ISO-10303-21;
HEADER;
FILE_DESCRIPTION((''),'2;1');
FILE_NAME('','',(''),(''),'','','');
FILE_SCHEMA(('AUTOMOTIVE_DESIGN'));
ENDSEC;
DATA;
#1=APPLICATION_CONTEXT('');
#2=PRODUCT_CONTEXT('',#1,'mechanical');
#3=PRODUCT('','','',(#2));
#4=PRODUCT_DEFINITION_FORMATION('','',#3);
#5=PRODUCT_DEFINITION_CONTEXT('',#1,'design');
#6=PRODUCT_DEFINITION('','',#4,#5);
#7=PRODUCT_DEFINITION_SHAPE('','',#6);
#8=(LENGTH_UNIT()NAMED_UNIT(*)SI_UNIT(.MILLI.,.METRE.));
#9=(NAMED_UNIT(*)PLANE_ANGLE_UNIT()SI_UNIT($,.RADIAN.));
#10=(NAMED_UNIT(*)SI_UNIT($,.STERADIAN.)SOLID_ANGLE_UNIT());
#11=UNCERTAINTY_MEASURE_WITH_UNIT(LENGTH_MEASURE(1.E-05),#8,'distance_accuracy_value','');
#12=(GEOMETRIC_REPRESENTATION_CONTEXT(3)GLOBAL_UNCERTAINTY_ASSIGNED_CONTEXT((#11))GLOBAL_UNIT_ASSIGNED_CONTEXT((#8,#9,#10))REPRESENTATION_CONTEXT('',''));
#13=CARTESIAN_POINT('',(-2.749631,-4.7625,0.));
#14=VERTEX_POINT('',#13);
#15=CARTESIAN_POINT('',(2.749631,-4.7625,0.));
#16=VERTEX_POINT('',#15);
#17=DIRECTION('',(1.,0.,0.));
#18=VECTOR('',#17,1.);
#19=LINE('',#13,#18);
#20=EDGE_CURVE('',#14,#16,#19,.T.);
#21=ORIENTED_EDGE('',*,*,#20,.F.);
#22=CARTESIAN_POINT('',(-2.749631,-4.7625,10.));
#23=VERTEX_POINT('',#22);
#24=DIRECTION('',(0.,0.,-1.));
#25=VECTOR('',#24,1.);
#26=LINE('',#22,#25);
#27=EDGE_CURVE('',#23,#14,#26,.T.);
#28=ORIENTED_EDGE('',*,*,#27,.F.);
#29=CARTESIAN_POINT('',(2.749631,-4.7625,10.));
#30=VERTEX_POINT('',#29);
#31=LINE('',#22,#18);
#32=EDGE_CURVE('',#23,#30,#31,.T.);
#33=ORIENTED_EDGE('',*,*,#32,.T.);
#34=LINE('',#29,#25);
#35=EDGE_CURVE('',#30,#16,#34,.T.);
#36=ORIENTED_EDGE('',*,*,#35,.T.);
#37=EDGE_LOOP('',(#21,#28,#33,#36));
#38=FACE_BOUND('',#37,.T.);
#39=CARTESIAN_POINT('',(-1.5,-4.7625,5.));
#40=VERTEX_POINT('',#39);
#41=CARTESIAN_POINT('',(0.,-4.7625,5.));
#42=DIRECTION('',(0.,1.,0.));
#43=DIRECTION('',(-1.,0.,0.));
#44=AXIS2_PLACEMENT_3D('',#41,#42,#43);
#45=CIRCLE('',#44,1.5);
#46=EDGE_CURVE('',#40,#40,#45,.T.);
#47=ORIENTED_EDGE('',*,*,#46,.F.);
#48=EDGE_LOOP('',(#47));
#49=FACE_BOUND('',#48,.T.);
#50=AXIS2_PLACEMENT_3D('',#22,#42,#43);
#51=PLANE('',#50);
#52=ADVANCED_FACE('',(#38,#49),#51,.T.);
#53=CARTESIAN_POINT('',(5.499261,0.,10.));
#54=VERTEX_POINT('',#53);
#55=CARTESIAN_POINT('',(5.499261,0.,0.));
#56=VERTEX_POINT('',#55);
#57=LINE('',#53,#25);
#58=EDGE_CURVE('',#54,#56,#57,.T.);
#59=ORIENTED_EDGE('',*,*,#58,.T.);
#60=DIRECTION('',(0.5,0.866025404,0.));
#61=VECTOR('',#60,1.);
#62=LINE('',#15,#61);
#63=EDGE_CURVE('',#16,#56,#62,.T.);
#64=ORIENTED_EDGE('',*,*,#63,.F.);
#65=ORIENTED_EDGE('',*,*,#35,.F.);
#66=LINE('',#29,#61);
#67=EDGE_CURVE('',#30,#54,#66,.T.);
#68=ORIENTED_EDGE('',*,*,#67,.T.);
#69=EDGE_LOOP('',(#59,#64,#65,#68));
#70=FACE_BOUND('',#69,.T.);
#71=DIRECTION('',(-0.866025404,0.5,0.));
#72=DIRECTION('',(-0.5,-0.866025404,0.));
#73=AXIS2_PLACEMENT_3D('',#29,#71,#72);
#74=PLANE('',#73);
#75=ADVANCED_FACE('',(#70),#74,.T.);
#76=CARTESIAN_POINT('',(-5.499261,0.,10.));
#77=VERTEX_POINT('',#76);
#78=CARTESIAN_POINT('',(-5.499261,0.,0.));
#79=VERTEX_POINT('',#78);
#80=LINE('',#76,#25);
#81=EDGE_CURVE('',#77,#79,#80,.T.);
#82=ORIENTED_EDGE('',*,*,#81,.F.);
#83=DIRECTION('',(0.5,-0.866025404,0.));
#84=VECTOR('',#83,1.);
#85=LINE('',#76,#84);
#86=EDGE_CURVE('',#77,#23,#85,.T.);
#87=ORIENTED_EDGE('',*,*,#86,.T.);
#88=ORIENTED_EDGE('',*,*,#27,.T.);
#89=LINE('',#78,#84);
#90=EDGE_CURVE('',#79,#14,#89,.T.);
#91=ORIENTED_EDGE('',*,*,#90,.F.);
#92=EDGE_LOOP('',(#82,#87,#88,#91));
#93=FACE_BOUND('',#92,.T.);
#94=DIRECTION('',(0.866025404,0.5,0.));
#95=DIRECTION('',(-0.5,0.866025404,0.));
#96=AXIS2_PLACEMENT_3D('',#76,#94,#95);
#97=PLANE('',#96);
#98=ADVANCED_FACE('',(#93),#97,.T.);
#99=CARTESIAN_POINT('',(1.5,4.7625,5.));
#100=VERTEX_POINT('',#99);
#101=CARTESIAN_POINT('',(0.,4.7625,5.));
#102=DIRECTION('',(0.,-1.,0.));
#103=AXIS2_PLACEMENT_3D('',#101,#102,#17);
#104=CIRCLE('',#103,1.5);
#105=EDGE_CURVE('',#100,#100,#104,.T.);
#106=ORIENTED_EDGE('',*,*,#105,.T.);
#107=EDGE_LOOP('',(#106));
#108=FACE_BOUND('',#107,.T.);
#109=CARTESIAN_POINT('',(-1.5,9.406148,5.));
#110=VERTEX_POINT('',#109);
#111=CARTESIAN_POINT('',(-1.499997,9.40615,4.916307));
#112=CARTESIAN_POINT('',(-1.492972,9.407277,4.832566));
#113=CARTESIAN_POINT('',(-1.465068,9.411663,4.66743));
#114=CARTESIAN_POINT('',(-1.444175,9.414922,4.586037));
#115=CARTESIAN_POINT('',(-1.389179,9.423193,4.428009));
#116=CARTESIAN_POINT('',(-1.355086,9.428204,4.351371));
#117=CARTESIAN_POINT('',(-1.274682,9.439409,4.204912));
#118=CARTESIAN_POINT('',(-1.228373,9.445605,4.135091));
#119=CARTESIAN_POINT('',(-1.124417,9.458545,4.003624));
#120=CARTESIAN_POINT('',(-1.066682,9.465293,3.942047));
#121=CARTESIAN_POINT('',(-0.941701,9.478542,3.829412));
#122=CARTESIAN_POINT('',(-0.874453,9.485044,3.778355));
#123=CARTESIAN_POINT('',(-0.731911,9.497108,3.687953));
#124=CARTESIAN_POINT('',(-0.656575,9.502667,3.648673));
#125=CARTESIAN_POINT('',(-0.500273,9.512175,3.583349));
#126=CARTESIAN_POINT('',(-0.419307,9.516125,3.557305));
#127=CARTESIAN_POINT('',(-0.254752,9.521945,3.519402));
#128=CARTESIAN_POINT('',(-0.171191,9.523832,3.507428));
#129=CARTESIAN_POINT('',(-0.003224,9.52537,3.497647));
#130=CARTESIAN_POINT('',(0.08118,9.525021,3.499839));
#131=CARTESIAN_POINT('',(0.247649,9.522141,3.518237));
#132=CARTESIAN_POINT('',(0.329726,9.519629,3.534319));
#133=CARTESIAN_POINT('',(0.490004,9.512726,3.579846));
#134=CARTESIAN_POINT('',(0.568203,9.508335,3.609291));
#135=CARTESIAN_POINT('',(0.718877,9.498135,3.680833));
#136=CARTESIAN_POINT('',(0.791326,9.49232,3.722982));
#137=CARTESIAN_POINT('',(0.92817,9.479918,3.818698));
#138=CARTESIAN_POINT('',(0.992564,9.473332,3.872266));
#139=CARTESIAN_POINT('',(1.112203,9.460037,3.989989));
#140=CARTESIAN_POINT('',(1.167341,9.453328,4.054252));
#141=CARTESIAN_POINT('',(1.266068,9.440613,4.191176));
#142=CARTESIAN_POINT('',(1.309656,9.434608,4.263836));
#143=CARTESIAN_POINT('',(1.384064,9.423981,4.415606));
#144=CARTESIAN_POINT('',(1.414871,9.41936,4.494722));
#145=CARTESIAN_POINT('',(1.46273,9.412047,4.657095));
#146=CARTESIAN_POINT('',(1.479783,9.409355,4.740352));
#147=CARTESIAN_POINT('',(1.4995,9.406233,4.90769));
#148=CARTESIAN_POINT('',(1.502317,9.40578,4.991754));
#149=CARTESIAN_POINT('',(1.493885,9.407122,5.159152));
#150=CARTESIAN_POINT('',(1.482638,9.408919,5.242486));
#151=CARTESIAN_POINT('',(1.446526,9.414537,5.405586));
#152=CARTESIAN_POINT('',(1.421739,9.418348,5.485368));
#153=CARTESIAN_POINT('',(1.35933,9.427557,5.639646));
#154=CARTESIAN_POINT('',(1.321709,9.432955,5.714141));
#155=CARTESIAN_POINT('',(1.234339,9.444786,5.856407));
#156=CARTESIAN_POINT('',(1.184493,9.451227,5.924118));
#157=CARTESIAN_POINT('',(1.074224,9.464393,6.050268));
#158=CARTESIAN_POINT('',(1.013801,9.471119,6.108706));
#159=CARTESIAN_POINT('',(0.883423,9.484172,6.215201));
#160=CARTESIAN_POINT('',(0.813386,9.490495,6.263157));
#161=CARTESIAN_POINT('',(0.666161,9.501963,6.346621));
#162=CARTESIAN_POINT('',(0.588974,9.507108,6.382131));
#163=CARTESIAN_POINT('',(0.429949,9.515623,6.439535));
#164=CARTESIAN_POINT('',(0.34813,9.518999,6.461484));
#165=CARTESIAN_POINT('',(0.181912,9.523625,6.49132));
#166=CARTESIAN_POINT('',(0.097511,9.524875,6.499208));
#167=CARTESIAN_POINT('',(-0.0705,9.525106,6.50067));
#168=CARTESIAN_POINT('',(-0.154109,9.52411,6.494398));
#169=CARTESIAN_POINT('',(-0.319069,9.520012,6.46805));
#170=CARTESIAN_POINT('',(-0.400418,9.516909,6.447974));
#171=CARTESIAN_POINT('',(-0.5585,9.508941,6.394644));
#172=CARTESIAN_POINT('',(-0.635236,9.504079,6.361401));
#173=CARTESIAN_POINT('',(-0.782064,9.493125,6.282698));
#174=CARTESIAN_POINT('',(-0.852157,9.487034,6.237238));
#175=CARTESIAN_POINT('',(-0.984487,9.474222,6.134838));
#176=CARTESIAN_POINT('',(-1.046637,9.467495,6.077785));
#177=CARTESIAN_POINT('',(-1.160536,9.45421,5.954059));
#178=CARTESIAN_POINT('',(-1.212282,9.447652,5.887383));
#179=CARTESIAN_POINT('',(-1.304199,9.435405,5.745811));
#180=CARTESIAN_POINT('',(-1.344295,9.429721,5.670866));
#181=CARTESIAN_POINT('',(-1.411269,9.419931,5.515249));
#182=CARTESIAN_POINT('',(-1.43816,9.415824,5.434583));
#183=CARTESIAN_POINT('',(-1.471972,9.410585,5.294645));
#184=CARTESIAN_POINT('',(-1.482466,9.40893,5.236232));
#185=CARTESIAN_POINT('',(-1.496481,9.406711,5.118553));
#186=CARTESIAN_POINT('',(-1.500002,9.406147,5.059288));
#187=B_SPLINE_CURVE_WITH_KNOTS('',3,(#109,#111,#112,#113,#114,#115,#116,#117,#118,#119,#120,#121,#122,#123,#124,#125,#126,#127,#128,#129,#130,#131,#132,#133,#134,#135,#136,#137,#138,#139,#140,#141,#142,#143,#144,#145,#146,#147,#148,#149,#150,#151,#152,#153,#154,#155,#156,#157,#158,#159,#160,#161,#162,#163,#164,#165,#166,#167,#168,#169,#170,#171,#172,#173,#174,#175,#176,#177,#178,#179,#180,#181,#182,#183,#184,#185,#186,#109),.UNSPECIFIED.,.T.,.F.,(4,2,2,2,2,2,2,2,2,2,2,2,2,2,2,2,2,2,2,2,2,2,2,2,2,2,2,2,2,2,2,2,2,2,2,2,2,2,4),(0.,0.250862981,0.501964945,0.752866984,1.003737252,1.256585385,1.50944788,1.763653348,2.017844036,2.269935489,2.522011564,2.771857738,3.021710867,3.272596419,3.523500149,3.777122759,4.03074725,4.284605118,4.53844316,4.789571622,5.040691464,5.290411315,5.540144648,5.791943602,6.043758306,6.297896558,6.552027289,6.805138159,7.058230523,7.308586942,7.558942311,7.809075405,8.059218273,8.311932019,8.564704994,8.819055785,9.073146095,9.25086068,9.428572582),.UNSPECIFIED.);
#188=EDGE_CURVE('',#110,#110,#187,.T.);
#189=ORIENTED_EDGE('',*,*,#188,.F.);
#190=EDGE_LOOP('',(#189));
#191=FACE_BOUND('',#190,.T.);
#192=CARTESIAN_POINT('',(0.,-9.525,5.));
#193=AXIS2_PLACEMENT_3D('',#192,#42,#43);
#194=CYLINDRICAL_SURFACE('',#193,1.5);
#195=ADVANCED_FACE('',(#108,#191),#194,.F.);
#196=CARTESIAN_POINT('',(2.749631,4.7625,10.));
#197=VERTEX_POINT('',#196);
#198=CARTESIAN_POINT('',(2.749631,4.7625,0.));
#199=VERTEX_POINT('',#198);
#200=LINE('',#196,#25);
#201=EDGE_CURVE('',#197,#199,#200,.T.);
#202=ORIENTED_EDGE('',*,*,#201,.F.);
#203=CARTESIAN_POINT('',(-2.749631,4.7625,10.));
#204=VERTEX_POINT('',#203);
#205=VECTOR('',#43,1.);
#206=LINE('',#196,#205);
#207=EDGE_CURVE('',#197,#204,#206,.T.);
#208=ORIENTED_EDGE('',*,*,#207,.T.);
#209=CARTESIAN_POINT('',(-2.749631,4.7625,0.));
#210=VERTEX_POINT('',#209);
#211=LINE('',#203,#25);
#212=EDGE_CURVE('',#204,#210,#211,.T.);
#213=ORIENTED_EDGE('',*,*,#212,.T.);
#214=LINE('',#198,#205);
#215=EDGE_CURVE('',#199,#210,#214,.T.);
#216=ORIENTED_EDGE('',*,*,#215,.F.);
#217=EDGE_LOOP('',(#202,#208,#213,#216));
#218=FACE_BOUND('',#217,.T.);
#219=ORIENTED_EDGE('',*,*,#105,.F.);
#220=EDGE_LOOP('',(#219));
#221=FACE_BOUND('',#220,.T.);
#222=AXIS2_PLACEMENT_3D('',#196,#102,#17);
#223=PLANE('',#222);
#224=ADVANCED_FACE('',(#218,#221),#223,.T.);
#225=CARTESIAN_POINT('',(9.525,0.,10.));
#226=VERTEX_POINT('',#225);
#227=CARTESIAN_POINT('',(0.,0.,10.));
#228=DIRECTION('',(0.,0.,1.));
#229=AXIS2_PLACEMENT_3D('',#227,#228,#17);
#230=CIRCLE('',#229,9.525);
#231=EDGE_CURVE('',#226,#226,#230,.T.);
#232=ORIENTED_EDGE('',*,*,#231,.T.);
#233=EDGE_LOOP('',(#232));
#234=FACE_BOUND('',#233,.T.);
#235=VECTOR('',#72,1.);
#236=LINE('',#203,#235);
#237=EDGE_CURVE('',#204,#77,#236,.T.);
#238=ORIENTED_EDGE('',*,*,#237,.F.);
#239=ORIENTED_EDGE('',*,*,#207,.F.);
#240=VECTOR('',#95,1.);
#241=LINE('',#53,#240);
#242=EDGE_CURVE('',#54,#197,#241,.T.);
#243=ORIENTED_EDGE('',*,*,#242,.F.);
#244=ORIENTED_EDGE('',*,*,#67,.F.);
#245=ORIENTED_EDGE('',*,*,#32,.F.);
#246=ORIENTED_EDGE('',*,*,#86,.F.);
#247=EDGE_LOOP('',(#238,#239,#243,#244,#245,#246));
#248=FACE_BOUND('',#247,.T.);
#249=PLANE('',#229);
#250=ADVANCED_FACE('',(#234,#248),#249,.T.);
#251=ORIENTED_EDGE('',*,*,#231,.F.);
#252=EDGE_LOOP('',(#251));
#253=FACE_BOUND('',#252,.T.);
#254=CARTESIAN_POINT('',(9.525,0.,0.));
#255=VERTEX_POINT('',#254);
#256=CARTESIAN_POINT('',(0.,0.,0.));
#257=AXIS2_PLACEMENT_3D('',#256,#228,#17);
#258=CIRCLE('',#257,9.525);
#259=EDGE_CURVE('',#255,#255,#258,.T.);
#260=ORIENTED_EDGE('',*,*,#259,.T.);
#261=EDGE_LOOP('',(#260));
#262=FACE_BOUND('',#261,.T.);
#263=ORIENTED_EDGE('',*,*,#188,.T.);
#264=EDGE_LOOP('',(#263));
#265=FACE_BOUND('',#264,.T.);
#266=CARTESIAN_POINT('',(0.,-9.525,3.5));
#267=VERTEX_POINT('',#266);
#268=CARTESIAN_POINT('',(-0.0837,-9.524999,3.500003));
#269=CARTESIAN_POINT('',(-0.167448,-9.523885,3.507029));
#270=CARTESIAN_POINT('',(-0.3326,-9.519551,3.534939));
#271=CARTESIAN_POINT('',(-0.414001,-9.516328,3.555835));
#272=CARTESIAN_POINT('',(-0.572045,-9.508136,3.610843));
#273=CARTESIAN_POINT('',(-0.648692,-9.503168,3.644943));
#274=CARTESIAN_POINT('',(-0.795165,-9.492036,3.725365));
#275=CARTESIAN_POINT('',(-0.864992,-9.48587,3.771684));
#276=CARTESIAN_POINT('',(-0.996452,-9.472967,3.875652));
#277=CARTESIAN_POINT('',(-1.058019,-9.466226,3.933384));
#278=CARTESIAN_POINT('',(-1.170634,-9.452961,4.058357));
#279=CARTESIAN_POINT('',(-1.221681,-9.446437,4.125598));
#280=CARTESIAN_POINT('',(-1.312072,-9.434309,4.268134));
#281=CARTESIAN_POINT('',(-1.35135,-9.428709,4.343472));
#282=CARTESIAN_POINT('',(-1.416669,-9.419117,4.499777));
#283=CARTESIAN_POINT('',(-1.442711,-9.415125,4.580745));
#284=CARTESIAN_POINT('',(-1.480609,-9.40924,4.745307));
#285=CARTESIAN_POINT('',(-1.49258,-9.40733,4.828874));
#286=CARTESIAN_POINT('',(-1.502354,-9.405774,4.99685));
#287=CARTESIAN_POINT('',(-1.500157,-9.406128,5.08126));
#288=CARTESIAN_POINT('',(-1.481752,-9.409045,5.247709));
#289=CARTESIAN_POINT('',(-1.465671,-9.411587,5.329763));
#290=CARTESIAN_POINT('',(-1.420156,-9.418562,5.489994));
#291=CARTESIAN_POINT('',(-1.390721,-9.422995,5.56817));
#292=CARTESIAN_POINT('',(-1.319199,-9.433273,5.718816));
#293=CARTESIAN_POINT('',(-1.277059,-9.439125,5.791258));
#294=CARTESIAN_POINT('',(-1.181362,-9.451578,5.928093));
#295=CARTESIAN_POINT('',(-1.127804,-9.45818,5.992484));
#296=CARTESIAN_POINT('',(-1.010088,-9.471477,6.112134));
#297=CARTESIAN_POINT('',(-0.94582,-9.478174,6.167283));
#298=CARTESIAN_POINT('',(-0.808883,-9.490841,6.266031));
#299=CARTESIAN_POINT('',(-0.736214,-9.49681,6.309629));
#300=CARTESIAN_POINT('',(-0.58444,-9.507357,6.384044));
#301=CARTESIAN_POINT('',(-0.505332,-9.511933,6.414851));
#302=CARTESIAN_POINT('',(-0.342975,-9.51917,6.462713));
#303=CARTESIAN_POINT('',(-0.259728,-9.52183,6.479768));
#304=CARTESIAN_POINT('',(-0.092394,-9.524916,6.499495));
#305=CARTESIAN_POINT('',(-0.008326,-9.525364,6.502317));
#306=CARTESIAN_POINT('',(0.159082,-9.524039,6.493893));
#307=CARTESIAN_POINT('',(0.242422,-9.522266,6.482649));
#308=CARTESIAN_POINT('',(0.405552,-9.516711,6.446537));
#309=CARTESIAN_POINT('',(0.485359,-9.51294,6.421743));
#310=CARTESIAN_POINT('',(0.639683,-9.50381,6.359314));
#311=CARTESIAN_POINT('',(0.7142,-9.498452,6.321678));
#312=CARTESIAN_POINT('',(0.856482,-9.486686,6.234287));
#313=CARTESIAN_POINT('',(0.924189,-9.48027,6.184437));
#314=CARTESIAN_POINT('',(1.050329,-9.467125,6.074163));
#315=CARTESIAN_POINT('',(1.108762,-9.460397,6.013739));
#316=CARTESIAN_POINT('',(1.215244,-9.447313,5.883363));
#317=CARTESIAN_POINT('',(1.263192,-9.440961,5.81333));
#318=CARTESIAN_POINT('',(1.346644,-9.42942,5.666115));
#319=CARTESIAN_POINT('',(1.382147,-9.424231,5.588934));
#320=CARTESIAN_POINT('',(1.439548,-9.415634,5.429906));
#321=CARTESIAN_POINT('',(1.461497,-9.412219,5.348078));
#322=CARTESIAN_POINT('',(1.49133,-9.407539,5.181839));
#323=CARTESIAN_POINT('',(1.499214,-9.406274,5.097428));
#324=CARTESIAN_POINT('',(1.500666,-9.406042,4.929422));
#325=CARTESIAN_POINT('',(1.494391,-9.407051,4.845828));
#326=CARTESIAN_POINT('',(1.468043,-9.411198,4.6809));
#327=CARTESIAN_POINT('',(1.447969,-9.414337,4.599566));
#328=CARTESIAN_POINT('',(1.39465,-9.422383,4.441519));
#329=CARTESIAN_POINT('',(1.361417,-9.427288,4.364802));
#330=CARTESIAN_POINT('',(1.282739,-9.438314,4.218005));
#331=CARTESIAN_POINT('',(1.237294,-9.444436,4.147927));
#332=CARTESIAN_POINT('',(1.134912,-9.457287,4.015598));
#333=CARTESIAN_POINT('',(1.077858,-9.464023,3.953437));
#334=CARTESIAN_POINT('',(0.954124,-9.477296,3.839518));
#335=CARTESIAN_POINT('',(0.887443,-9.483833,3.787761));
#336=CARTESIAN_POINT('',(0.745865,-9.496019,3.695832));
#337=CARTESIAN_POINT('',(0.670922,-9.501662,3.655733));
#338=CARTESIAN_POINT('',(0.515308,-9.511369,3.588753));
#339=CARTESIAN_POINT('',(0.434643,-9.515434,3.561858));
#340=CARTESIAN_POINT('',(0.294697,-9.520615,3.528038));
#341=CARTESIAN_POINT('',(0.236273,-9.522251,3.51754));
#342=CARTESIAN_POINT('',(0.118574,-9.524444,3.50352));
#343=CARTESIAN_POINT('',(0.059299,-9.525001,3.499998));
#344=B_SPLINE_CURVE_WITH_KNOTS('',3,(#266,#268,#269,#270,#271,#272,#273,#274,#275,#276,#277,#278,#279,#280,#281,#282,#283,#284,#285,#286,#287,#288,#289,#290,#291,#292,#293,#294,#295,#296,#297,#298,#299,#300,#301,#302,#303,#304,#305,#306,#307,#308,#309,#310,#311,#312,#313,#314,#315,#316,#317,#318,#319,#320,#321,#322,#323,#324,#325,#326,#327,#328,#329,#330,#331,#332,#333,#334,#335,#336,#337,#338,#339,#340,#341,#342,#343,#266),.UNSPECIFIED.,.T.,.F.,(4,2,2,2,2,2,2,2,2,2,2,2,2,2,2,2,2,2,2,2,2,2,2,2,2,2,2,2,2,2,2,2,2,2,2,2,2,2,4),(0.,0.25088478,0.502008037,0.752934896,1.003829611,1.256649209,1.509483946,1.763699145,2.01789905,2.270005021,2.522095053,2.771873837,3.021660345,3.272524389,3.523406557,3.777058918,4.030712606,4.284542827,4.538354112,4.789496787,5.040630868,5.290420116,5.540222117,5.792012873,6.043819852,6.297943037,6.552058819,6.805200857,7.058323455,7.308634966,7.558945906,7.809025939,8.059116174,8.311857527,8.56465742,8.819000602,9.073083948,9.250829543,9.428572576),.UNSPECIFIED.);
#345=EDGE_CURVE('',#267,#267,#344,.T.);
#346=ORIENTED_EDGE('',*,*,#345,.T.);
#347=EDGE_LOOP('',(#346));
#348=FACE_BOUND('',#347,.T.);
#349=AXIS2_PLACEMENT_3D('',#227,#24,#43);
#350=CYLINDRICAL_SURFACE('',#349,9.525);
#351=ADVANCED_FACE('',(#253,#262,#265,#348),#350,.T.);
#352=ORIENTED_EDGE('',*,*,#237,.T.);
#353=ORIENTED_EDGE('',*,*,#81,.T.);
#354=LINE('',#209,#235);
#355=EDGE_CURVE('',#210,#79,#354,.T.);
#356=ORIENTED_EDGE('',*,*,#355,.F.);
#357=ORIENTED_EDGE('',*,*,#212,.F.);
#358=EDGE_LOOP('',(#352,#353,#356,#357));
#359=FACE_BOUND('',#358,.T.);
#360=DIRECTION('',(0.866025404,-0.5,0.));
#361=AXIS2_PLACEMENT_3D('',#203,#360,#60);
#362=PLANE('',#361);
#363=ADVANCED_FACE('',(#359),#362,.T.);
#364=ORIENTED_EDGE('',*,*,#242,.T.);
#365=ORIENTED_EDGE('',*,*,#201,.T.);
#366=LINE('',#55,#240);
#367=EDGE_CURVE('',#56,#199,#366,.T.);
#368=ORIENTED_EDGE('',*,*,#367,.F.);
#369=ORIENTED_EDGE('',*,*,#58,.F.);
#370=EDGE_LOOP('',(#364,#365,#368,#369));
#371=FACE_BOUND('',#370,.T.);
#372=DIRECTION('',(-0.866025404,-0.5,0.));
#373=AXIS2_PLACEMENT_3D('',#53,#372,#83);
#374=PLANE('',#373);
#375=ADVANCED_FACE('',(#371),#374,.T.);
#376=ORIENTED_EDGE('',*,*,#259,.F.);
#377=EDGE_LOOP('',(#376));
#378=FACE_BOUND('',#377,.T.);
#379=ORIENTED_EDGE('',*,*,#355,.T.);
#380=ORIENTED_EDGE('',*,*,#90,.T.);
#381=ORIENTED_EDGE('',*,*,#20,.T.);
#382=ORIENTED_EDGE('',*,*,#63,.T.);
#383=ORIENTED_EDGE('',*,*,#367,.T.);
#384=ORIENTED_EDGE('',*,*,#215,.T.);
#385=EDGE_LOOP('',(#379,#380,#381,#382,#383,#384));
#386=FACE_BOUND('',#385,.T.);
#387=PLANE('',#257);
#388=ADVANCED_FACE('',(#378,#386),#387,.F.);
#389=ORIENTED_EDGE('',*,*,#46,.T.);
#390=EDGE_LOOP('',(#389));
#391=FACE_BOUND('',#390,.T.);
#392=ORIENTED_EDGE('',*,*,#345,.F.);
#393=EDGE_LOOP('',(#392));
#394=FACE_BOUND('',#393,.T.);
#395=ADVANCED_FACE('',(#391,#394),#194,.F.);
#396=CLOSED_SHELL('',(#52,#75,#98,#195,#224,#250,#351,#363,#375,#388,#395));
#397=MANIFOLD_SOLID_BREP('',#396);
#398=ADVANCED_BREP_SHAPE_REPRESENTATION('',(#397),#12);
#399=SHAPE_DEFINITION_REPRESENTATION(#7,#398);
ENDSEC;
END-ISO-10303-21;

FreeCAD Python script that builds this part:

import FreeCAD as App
import Part
import Sketcher
from FreeCAD import Vector
Q = App.Units.Quantity

doc = App.newDocument("Part")
body = doc.addObject("PartDesign::Body", "Body")

# Sketch on XY plane
sketch1 = body.newObject("Sketcher::SketchObject", "Sketch")
sketch1.AttachmentSupport = (doc.getObject("XY_Plane"), [""])
sketch1.MapMode = "FlatFace"
sketch1.addGeometry([
    Part.Circle(Vector(0, 0, 0), Vector(0, 0, 1), 10),  # 0
    Part.LineSegment(Vector(3, 5, 0), Vector(5, 0, 0)),  # 1
    Part.LineSegment(Vector(5, 0, 0), Vector(3, -5, 0)),  # 2
    Part.LineSegment(Vector(3, -5, 0), Vector(-3, -5, 0)),  # 3
    Part.LineSegment(Vector(-3, -5, 0), Vector(-5, 0, 0)),  # 4
    Part.LineSegment(Vector(-5, 0, 0), Vector(-3, 5, 0)),  # 5
    Part.LineSegment(Vector(-3, 5, 0), Vector(3, 5, 0)),  # 6
], False)
sketch1.addConstraint([
    Sketcher.Constraint("Coincident", 1, 2, 2, 1),
    Sketcher.Constraint("Coincident", 2, 2, 3, 1),
    Sketcher.Constraint("Coincident", 3, 2, 4, 1),
    Sketcher.Constraint("Coincident", 4, 2, 5, 1),
    Sketcher.Constraint("Coincident", 5, 2, 6, 1),
    Sketcher.Constraint("Coincident", 6, 2, 1, 1),
    Sketcher.Constraint("Horizontal", 3),
    Sketcher.Constraint("Horizontal", 6),
    Sketcher.Constraint("Coincident", 0, 3, -1, 1),
    Sketcher.Constraint("Symmetric", 1, 2, 4, 2, -1, 1),
    Sketcher.Constraint("Symmetric", 2, 2, 5, 2, -1, 1),
    Sketcher.Constraint("PointOnObject", 1, 2, -1),
    Sketcher.Constraint("Parallel", 1, 4),
    Sketcher.Constraint("Vertical", 3, 2, 5, 2),
    Sketcher.Constraint("Diameter", 0, Q("19.05 mm")),
    Sketcher.Constraint("Angle", 1, Q("-60 deg")),
    Sketcher.Constraint("DistanceY", 3, 2, 5, 2, Q("9.525 mm")),
    Sketcher.Constraint("DistanceX", 3, 2, 3, 1, Q("5.499261 mm")),
])
pad1 = body.newObject("PartDesign::Pad", "Pad")
pad1.Profile = sketch1
pad1.Length = 10

# Sketch on XZ plane
sketch2 = body.newObject("Sketcher::SketchObject", "Sketch001")
sketch2.AttachmentSupport = (doc.getObject("XZ_Plane"), [""])
sketch2.MapMode = "FlatFace"
sketch2.AttachmentOffset = App.Placement(Vector(0, 0, 4.7625), App.Rotation())
sketch2.addGeometry(Part.Circle(Vector(0, 5, 0), Vector(0, 0, 1), 1.5), False)
sketch2.addConstraint([
    Sketcher.Constraint("PointOnObject", 0, 3, -2),
    Sketcher.Constraint("Diameter", 0, Q("3 mm")),
    Sketcher.Constraint("DistanceY", -1, 1, 0, 3, Q("5 mm")),
])
pocket1 = body.newObject("PartDesign::Pocket", "Pocket")
pocket1.Profile = sketch2
pocket1.Type = "ThroughAll"
pocket1.Midplane = True

doc.recompute()
